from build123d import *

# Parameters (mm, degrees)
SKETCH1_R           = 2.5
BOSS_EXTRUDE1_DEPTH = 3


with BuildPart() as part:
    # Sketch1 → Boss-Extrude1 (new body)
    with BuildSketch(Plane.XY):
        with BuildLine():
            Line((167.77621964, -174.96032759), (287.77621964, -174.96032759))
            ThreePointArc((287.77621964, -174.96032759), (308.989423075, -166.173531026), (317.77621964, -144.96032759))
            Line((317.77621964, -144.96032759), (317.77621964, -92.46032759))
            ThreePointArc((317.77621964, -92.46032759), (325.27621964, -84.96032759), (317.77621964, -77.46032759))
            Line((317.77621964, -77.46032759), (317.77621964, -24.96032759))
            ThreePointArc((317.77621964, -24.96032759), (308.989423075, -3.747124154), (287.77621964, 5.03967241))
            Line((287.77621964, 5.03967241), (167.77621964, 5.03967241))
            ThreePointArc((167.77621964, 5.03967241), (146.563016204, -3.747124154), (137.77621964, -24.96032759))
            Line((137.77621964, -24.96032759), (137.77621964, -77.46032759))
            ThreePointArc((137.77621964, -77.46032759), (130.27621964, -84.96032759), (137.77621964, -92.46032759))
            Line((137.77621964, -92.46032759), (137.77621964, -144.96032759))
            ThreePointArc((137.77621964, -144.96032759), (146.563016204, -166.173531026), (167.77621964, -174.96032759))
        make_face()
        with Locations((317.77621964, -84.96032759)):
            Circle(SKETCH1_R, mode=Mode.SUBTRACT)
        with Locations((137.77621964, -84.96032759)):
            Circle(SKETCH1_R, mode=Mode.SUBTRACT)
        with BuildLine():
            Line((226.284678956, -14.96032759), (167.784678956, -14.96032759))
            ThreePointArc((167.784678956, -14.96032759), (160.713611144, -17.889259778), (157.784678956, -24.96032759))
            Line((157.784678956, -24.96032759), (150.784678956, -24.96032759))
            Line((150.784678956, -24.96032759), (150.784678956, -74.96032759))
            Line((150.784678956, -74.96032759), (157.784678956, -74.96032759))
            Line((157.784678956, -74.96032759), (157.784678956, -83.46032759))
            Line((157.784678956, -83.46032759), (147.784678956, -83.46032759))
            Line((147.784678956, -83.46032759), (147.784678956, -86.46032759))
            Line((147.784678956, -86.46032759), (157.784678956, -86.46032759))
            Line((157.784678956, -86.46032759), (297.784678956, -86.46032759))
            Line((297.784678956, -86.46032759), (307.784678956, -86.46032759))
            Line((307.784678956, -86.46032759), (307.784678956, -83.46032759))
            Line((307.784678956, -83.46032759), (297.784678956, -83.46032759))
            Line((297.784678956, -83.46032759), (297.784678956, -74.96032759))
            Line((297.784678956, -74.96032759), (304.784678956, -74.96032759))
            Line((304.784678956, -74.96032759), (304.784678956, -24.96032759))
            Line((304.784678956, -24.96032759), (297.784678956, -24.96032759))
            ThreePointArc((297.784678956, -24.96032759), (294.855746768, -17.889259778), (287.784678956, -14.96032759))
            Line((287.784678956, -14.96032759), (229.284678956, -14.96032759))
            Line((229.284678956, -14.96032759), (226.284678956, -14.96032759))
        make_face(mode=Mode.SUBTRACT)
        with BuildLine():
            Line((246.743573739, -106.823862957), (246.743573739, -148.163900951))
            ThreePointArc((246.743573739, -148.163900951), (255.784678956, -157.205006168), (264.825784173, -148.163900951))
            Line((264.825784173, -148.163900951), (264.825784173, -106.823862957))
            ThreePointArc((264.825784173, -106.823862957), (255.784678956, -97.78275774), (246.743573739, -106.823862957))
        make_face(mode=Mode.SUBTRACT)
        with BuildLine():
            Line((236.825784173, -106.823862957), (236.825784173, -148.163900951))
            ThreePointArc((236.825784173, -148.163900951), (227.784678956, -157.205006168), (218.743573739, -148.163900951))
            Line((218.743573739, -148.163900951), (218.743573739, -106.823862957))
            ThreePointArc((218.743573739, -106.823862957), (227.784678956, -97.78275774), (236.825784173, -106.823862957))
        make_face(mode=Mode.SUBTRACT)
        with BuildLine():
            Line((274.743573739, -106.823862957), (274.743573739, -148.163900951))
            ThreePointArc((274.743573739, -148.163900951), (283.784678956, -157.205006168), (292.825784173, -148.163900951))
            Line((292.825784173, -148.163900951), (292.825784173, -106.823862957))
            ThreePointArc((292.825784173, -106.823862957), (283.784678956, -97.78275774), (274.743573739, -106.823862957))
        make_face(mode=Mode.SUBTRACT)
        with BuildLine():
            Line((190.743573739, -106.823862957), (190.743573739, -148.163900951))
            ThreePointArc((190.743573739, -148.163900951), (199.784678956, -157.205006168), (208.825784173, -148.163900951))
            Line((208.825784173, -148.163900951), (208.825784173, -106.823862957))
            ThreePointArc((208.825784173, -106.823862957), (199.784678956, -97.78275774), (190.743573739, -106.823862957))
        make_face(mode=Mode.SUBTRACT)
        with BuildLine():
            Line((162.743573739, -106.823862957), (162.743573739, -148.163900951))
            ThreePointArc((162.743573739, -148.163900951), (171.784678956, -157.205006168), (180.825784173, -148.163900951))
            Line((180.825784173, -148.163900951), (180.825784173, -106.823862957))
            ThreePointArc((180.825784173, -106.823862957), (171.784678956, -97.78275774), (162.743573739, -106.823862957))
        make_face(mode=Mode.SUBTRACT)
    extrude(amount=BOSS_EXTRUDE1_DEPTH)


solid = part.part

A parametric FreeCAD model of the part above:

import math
import FreeCAD as App
import Part
import Sketcher

V = App.Vector
Q = App.Units.Quantity

doc = App.newDocument("Part")
body = doc.addObject("PartDesign::Body", "Body")

# Sketch on XY plane
sketch1 = body.newObject("Sketcher::SketchObject", "Sketch")
sketch1.AttachmentSupport = (doc.getObject("XY_Plane"), [""])
sketch1.MapMode = "FlatFace"
sketch1.addGeometry(Part.LineSegment(V(167.77622, -174.960328, 0), V(287.77622, -174.960328, 0)), False)
sketch1.addGeometry(Part.ArcOfCircle(Part.Circle(V(287.77622, -144.960328, 0), V(0, 0, 1), 30), math.radians(-90), math.radians(0)), False)
sketch1.addGeometry(Part.LineSegment(V(317.77622, -144.960328, 0), V(317.77622, -92.460328, 0)), False)
sketch1.addGeometry(Part.ArcOfCircle(Part.Circle(V(317.77622, -84.960328, 0), V(0, 0, 1), 7.5), math.radians(-90), math.radians(90)), False)
sketch1.addGeometry(Part.LineSegment(V(317.77622, -77.460328, 0), V(317.77622, -24.960328, 0)), False)
sketch1.addGeometry(Part.ArcOfCircle(Part.Circle(V(287.77622, -24.960328, 0), V(0, 0, 1), 30), math.radians(0), math.radians(90)), False)
sketch1.addGeometry(Part.LineSegment(V(287.77622, 5.039672, 0), V(167.77622, 5.039672, 0)), False)
sketch1.addGeometry(Part.ArcOfCircle(Part.Circle(V(167.77622, -24.960328, 0), V(0, 0, 1), 30), math.radians(90), math.radians(180)), False)
sketch1.addGeometry(Part.LineSegment(V(137.77622, -24.960328, 0), V(137.77622, -77.460328, 0)), False)
sketch1.addGeometry(Part.ArcOfCircle(Part.Circle(V(137.77622, -84.960328, 0), V(0, 0, 1), 7.5), math.radians(90), math.radians(270)), False)
sketch1.addGeometry(Part.LineSegment(V(137.77622, -92.460328, 0), V(137.77622, -144.960328, 0)), False)
sketch1.addGeometry(Part.ArcOfCircle(Part.Circle(V(167.77622, -144.960328, 0), V(0, 0, 1), 30), math.radians(180), math.radians(270)), False)
sketch1.addGeometry(Part.LineSegment(V(162.743574, -148.163901, 0), V(162.743574, -106.823863, 0)), False)
sketch1.addGeometry(Part.ArcOfCircle(Part.Circle(V(171.784679, -106.823863, 0), V(0, 0, 1), 9.041105), math.radians(0), math.radians(180)), False)
sketch1.addGeometry(Part.LineSegment(V(180.825784, -106.823863, 0), V(180.825784, -148.163901, 0)), False)
sketch1.addGeometry(Part.ArcOfCircle(Part.Circle(V(171.784679, -148.163901, 0), V(0, 0, 1), 9.041105), math.radians(180), math.radians(360)), False)
sketch1.addGeometry(Part.LineSegment(V(190.743574, -148.163901, 0), V(190.743574, -106.823863, 0)), False)
sketch1.addGeometry(Part.ArcOfCircle(Part.Circle(V(199.784679, -106.823863, 0), V(0, 0, 1), 9.041105), math.radians(0), math.radians(180)), False)
sketch1.addGeometry(Part.LineSegment(V(208.825784, -106.823863, 0), V(208.825784, -148.163901, 0)), False)
sketch1.addGeometry(Part.ArcOfCircle(Part.Circle(V(199.784679, -148.163901, 0), V(0, 0, 1), 9.041105), math.radians(180), math.radians(360)), False)
sketch1.addGeometry(Part.ArcOfCircle(Part.Circle(V(227.784679, -106.823863, 0), V(0, 0, 1), 9.041105), math.radians(0), math.radians(180)), False)
sketch1.addGeometry(Part.LineSegment(V(236.825784, -106.823863, 0), V(236.825784, -148.163901, 0)), False)
sketch1.addGeometry(Part.ArcOfCircle(Part.Circle(V(227.784679, -148.163901, 0), V(0, 0, 1), 9.041105), math.radians(180), math.radians(360)), False)
sketch1.addGeometry(Part.LineSegment(V(218.743574, -148.163901, 0), V(218.743574, -106.823863, 0)), False)
sketch1.addGeometry(Part.LineSegment(V(246.743574, -148.163901, 0), V(246.743574, -106.823863, 0)), False)
sketch1.addGeometry(Part.ArcOfCircle(Part.Circle(V(255.784679, -106.823863, 0), V(0, 0, 1), 9.041105), math.radians(0), math.radians(180)), False)
sketch1.addGeometry(Part.LineSegment(V(264.825784, -106.823863, 0), V(264.825784, -148.163901, 0)), False)
sketch1.addGeometry(Part.ArcOfCircle(Part.Circle(V(255.784679, -148.163901, 0), V(0, 0, 1), 9.041105), math.radians(180), math.radians(360)), False)
sketch1.addGeometry(Part.LineSegment(V(274.743574, -148.163901, 0), V(274.743574, -106.823863, 0)), False)
sketch1.addGeometry(Part.ArcOfCircle(Part.Circle(V(283.784679, -106.823863, 0), V(0, 0, 1), 9.041105), math.radians(0), math.radians(180)), False)
sketch1.addGeometry(Part.LineSegment(V(292.825784, -106.823863, 0), V(292.825784, -148.163901, 0)), False)
sketch1.addGeometry(Part.ArcOfCircle(Part.Circle(V(283.784679, -148.163901, 0), V(0, 0, 1), 9.041105), math.radians(180), math.radians(360)), False)
sketch1.addGeometry(Part.Circle(V(137.77622, -84.960328, 0), V(0, 0, 1), 2.5), False)
sketch1.addGeometry(Part.ArcOfCircle(Part.Circle(V(167.784679, -24.960328, 0), V(0, 0, 1), 10), math.radians(90), math.radians(180)), False)
sketch1.addGeometry(Part.LineSegment(V(167.784679, -14.960328, 0), V(287.784679, -14.960328, 0)), False)
sketch1.addGeometry(Part.ArcOfCircle(Part.Circle(V(287.784679, -24.960328, 0), V(0, 0, 1), 10), math.radians(0), math.radians(90)), False)
sketch1.addGeometry(Part.LineSegment(V(297.784679, -24.960328, 0), V(304.784679, -24.960328, 0)), False)
sketch1.addGeometry(Part.LineSegment(V(304.784679, -24.960328, 0), V(304.784679, -74.960328, 0)), False)
sketch1.addGeometry(Part.LineSegment(V(304.784679, -74.960328, 0), V(297.784679, -74.960328, 0)), False)
sketch1.addGeometry(Part.LineSegment(V(297.784679, -74.960328, 0), V(297.784679, -83.460328, 0)), False)
sketch1.addGeometry(Part.LineSegment(V(297.784679, -83.460328, 0), V(307.784679, -83.460328, 0)), False)
sketch1.addGeometry(Part.LineSegment(V(307.784679, -83.460328, 0), V(307.784679, -86.460328, 0)), False)
sketch1.addGeometry(Part.LineSegment(V(307.784679, -86.460328, 0), V(147.784679, -86.460328, 0)), False)
sketch1.addGeometry(Part.LineSegment(V(147.784679, -86.460328, 0), V(147.784679, -83.460328, 0)), False)
sketch1.addGeometry(Part.LineSegment(V(147.784679, -83.460328, 0), V(157.784679, -83.460328, 0)), False)
sketch1.addGeometry(Part.LineSegment(V(157.784679, -83.460328, 0), V(157.784679, -74.960328, 0)), False)
sketch1.addGeometry(Part.LineSegment(V(157.784679, -74.960328, 0), V(150.784679, -74.960328, 0)), False)
sketch1.addGeometry(Part.LineSegment(V(150.784679, -74.960328, 0), V(150.784679, -24.960328, 0)), False)
sketch1.addGeometry(Part.LineSegment(V(150.784679, -24.960328, 0), V(157.784679, -24.960328, 0)), False)
sketch1.addGeometry(Part.Circle(V(317.77622, -84.960328, 0), V(0, 0, 1), 2.5), False)
sketch1.addConstraint(Sketcher.Constraint("Tangent", 0, 2, 1, 1))
sketch1.addConstraint(Sketcher.Constraint("Tangent", 1, 2, 2, 1))
sketch1.addConstraint(Sketcher.Constraint("Coincident", 2, 2, 3, 1))
sketch1.addConstraint(Sketcher.Constraint("Coincident", 3, 2, 4, 1))
sketch1.addConstraint(Sketcher.Constraint("Tangent", 4, 2, 5, 1))
sketch1.addConstraint(Sketcher.Constraint("Tangent", 5, 2, 6, 1))
sketch1.addConstraint(Sketcher.Constraint("Tangent", 6, 2, 7, 1))
sketch1.addConstraint(Sketcher.Constraint("Tangent", 7, 2, 8, 1))
sketch1.addConstraint(Sketcher.Constraint("Coincident", 8, 2, 9, 1))
sketch1.addConstraint(Sketcher.Constraint("Coincident", 9, 2, 10, 1))
sketch1.addConstraint(Sketcher.Constraint("Tangent", 10, 2, 11, 1))
sketch1.addConstraint(Sketcher.Constraint("Tangent", 11, 2, 0, 1))
sketch1.addConstraint(Sketcher.Constraint("Tangent", 12, 2, 13, 2))
sketch1.addConstraint(Sketcher.Constraint("Tangent", 13, 1, 14, 1))
sketch1.addConstraint(Sketcher.Constraint("Tangent", 14, 2, 15, 2))
sketch1.addConstraint(Sketcher.Constraint("Tangent", 15, 1, 12, 1))
sketch1.addConstraint(Sketcher.Constraint("Tangent", 16, 2, 17, 2))
sketch1.addConstraint(Sketcher.Constraint("Tangent", 17, 1, 18, 1))
sketch1.addConstraint(Sketcher.Constraint("Tangent", 18, 2, 19, 2))
sketch1.addConstraint(Sketcher.Constraint("Tangent", 19, 1, 16, 1))
sketch1.addConstraint(Sketcher.Constraint("Tangent", 20, 1, 21, 1))
sketch1.addConstraint(Sketcher.Constraint("Tangent", 21, 2, 22, 2))
sketch1.addConstraint(Sketcher.Constraint("Tangent", 22, 1, 23, 1))
sketch1.addConstraint(Sketcher.Constraint("Tangent", 23, 2, 20, 2))
sketch1.addConstraint(Sketcher.Constraint("Tangent", 24, 2, 25, 2))
sketch1.addConstraint(Sketcher.Constraint("Tangent", 25, 1, 26, 1))
sketch1.addConstraint(Sketcher.Constraint("Tangent", 26, 2, 27, 2))
sketch1.addConstraint(Sketcher.Constraint("Tangent", 27, 1, 24, 1))
sketch1.addConstraint(Sketcher.Constraint("Tangent", 28, 2, 29, 2))
sketch1.addConstraint(Sketcher.Constraint("Tangent", 29, 1, 30, 1))
sketch1.addConstraint(Sketcher.Constraint("Tangent", 30, 2, 31, 2))
sketch1.addConstraint(Sketcher.Constraint("Tangent", 31, 1, 28, 1))
sketch1.addConstraint(Sketcher.Constraint("Tangent", 33, 1, 34, 1))
sketch1.addConstraint(Sketcher.Constraint("Tangent", 34, 2, 35, 2))
sketch1.addConstraint(Sketcher.Constraint("Coincident", 35, 1, 36, 1))
sketch1.addConstraint(Sketcher.Constraint("Coincident", 36, 2, 37, 1))
sketch1.addConstraint(Sketcher.Constraint("Coincident", 37, 2, 38, 1))
sketch1.addConstraint(Sketcher.Constraint("Coincident", 38, 2, 39, 1))
sketch1.addConstraint(Sketcher.Constraint("Coincident", 39, 2, 40, 1))
sketch1.addConstraint(Sketcher.Constraint("Coincident", 40, 2, 41, 1))
sketch1.addConstraint(Sketcher.Constraint("Coincident", 41, 2, 42, 1))
sketch1.addConstraint(Sketcher.Constraint("Coincident", 42, 2, 43, 1))
sketch1.addConstraint(Sketcher.Constraint("Coincident", 43, 2, 44, 1))
sketch1.addConstraint(Sketcher.Constraint("Coincident", 44, 2, 45, 1))
sketch1.addConstraint(Sketcher.Constraint("Coincident", 45, 2, 46, 1))
sketch1.addConstraint(Sketcher.Constraint("Coincident", 46, 2, 47, 1))
sketch1.addConstraint(Sketcher.Constraint("Coincident", 47, 2, 48, 1))
sketch1.addConstraint(Sketcher.Constraint("Coincident", 48, 2, 33, 2))
sketch1.addConstraint(Sketcher.Constraint("Horizontal", 0))
sketch1.addConstraint(Sketcher.Constraint("Vertical", 2))
sketch1.addConstraint(Sketcher.Constraint("Vertical", 4))
sketch1.addConstraint(Sketcher.Constraint("Horizontal", 6))
sketch1.addConstraint(Sketcher.Constraint("Vertical", 8))
sketch1.addConstraint(Sketcher.Constraint("Vertical", 10))
sketch1.addConstraint(Sketcher.Constraint("Vertical", 12))
sketch1.addConstraint(Sketcher.Constraint("Vertical", 14))
sketch1.addConstraint(Sketcher.Constraint("Vertical", 16))
sketch1.addConstraint(Sketcher.Constraint("Vertical", 18))
sketch1.addConstraint(Sketcher.Constraint("Vertical", 21))
sketch1.addConstraint(Sketcher.Constraint("Vertical", 23))
sketch1.addConstraint(Sketcher.Constraint("Vertical", 24))
sketch1.addConstraint(Sketcher.Constraint("Vertical", 26))
sketch1.addConstraint(Sketcher.Constraint("Vertical", 28))
sketch1.addConstraint(Sketcher.Constraint("Vertical", 30))
sketch1.addConstraint(Sketcher.Constraint("Horizontal", 34))
sketch1.addConstraint(Sketcher.Constraint("Horizontal", 36))
sketch1.addConstraint(Sketcher.Constraint("Vertical", 37))
sketch1.addConstraint(Sketcher.Constraint("Horizontal", 38))
sketch1.addConstraint(Sketcher.Constraint("Vertical", 39))
sketch1.addConstraint(Sketcher.Constraint("Horizontal", 40))
sketch1.addConstraint(Sketcher.Constraint("Vertical", 41))
sketch1.addConstraint(Sketcher.Constraint("Horizontal", 42))
sketch1.addConstraint(Sketcher.Constraint("Vertical", 43))
sketch1.addConstraint(Sketcher.Constraint("Horizontal", 44))
sketch1.addConstraint(Sketcher.Constraint("Vertical", 45))
sketch1.addConstraint(Sketcher.Constraint("Horizontal", 46))
sketch1.addConstraint(Sketcher.Constraint("Vertical", 47))
sketch1.addConstraint(Sketcher.Constraint("Horizontal", 48))
sketch1.addConstraint(Sketcher.Constraint("Coincident", 32, 3, 9, 3))
sketch1.addConstraint(Sketcher.Constraint("Coincident", 49, 3, 3, 3))
sketch1.addConstraint(Sketcher.Constraint("Equal", 1, 5))
sketch1.addConstraint(Sketcher.Constraint("Equal", 5, 7))
sketch1.addConstraint(Sketcher.Constraint("Equal", 3, 9))
sketch1.addConstraint(Sketcher.Constraint("Equal", 7, 11))
sketch1.addConstraint(Sketcher.Constraint("Equal", 15, 17))
sketch1.addConstraint(Sketcher.Constraint("Equal", 19, 20))
sketch1.addConstraint(Sketcher.Constraint("Equal", 22, 25))
sketch1.addConstraint(Sketcher.Constraint("Equal", 27, 29))
sketch1.addConstraint(Sketcher.Constraint("Equal", 33, 35))
sketch1.addConstraint(Sketcher.Constraint("Equal", 32, 49))
sketch1.addConstraint(Sketcher.Constraint("Horizontal", 3, 3, 9, 3))
sketch1.addConstraint(Sketcher.Constraint("Horizontal", 13, 3, 17, 3))
sketch1.addConstraint(Sketcher.Constraint("Horizontal", 15, 3, 19, 3))
sketch1.addConstraint(Sketcher.Constraint("Horizontal", 17, 3, 20, 3))
sketch1.addConstraint(Sketcher.Constraint("Horizontal", 19, 3, 22, 3))
sketch1.addConstraint(Sketcher.Constraint("Horizontal", 20, 3, 25, 3))
sketch1.addConstraint(Sketcher.Constraint("Horizontal", 22, 3, 27, 3))
sketch1.addConstraint(Sketcher.Constraint("Horizontal", 25, 3, 29, 3))
sketch1.addConstraint(Sketcher.Constraint("Horizontal", 27, 3, 31, 3))
sketch1.addConstraint(Sketcher.Constraint("Horizontal", 7, 3, 33, 3))
sketch1.addConstraint(Sketcher.Constraint("Horizontal", 7, 2, 35, 1))
sketch1.addConstraint(Sketcher.Constraint("Horizontal", 40, 2, 43, 2))
sketch1.addConstraint(Sketcher.Constraint("Horizontal", 38, 2, 45, 2))
sketch1.addConstraint(Sketcher.Constraint("Horizontal", 36, 2, 47, 2))
sketch1.addConstraint(Sketcher.Constraint("Vertical", 1, 3, 5, 3))
sketch1.addConstraint(Sketcher.Constraint("Vertical", 7, 3, 11, 3))
sketch1.addConstraint(Sketcher.Constraint("Vertical", 49, 3, 1, 2))
sketch1.addConstraint(Sketcher.Constraint("Vertical", 32, 3, 7, 2))
sketch1.addConstraint(Sketcher.Constraint("Vertical", 35, 1, 38, 2))
sketch1.addConstraint(Sketcher.Constraint("Vertical", 45, 2, 48, 2))
sketch1.addConstraint(Sketcher.Constraint("Equal", 6, 34))
sketch1.addConstraint(Sketcher.Constraint("Equal", 40, 44))
sketch1.addConstraint(Sketcher.Constraint("Equal", 38, 46))
sketch1.addConstraint(Sketcher.Constraint("Equal", 2, 4))
sketch1.addConstraint(Sketcher.Constraint("Diameter", 32, Q("5 mm")))
sketch1.addConstraint(Sketcher.Constraint("Radius", 1, Q("30 mm")))
sketch1.addConstraint(Sketcher.Constraint("Radius", 33, Q("10 mm")))
sketch1.addConstraint(Sketcher.Constraint("Radius", 3, Q("7.5 mm")))
sketch1.addConstraint(Sketcher.Constraint("DistanceX", 0, 1, 0, 2, Q("120 mm")))
sketch1.addConstraint(Sketcher.Constraint("DistanceX", 36, 1, 36, 2, Q("7 mm")))
sketch1.addConstraint(Sketcher.Constraint("DistanceX", 40, 1, 40, 2, Q("10 mm")))
sketch1.addConstraint(Sketcher.Constraint("DistanceY", 37, 2, 37, 1, Q("50 mm")))
sketch1.addConstraint(Sketcher.Constraint("DistanceY", 41, 2, 41, 1, Q("3 mm")))
sketch1.addConstraint(Sketcher.Constraint("DistanceY", 2, 1, 2, 2, Q("52.5 mm")))
sketch1.addConstraint(Sketcher.Constraint("DistanceY", 39, 2, 39, 1, Q("8.5 mm")))
sketch1.addConstraint(Sketcher.Constraint("Radius", 13, Q("9.041105 mm")))
sketch1.addConstraint(Sketcher.Constraint("DistanceY", 15, 3, -1, 1, Q("148.163901 mm")))
sketch1.addConstraint(Sketcher.Constraint("DistanceY", 12, 1, 12, 2, Q("41.340038 mm")))
sketch1.addConstraint(Sketcher.Constraint("DistanceX", -1, 1, 1, 3, Q("287.77622 mm")))
sketch1.addConstraint(Sketcher.Constraint("DistanceX", -1, 1, 13, 3, Q("171.784679 mm")))
sketch1.addConstraint(Sketcher.Constraint("DistanceX", -1, 1, 17, 3, Q("199.784679 mm")))
sketch1.addConstraint(Sketcher.Constraint("DistanceX", -1, 1, 20, 3, Q("227.784679 mm")))
sketch1.addConstraint(Sketcher.Constraint("DistanceX", -1, 1, 25, 3, Q("255.784679 mm")))
sketch1.addConstraint(Sketcher.Constraint("DistanceX", -1, 1, 29, 3, Q("283.784679 mm")))
sketch1.addConstraint(Sketcher.Constraint("DistanceX", -1, 1, 33, 3, Q("167.784679 mm")))
sketch1.addConstraint(Sketcher.Constraint("DistanceY", 1, 3, -1, 1, Q("144.960328 mm")))
pad1 = body.newObject("PartDesign::Pad", "Pad")
pad1.Profile = sketch1
pad1.Length = 3

doc.recompute()
